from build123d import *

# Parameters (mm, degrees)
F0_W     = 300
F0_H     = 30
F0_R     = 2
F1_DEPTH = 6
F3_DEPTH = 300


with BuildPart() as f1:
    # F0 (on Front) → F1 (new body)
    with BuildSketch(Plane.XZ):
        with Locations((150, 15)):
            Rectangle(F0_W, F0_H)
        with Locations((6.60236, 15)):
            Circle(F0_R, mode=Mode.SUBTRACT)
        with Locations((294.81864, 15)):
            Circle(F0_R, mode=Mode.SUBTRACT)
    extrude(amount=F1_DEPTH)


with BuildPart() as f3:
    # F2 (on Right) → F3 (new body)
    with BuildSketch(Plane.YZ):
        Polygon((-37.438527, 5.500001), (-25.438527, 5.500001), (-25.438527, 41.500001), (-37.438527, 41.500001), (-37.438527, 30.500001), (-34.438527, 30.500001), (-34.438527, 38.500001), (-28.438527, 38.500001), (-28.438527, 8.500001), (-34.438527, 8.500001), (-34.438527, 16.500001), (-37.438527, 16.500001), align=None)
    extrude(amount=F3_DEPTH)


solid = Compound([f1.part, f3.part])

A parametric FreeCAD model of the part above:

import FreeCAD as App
import Part
import Sketcher
from FreeCAD import Vector
Q = App.Units.Quantity

doc = App.newDocument("Part")
body = doc.addObject("PartDesign::Body", "Body")

# Sketch on XZ plane
sketch1 = doc.addObject("Sketcher::SketchObject", "Sketch")
body.addObject(sketch1)
sketch1.AttachmentSupport = (doc.XZ_Plane, [""])
sketch1.MapMode = "FlatFace"
sketch1.addGeometry([
    Part.LineSegment(Vector(0, 30, 0), Vector(0, 0, 0)),  # 0
    Part.LineSegment(Vector(0, 0, 0), Vector(300, 0, 0)),  # 1
    Part.LineSegment(Vector(300, 0, 0), Vector(300, 30, 0)),  # 2
    Part.LineSegment(Vector(300, 30, 0), Vector(0, 30, 0)),  # 3
    Part.Circle(Vector(6.6, 15, 0), Vector(0, 0, 1), 2),  # 4
    Part.Circle(Vector(294.8, 15, 0), Vector(0, 0, 1), 2),  # 5
], False)
sketch1.addConstraint([
    Sketcher.Constraint("Coincident", 0, 2, 1, 1),
    Sketcher.Constraint("Coincident", 1, 2, 2, 1),
    Sketcher.Constraint("Coincident", 2, 2, 3, 1),
    Sketcher.Constraint("Coincident", 3, 2, 0, 1),
    Sketcher.Constraint("Vertical", 0),
    Sketcher.Constraint("Horizontal", 1),
    Sketcher.Constraint("Vertical", 2),
    Sketcher.Constraint("Horizontal", 3),
    Sketcher.Constraint("Coincident", 0, 2, -1, 1),
    Sketcher.Constraint("Equal", 4, 5),
    Sketcher.Constraint("Horizontal", 4, 3, 5, 3),
    Sketcher.Constraint("Diameter", 4, Q("4 mm")),
    Sketcher.Constraint("DistanceX", 1, 1, 1, 2, Q("300 mm")),
    Sketcher.Constraint("DistanceY", 0, 2, 0, 1, Q("30 mm")),
    Sketcher.Constraint("DistanceY", -1, 1, 4, 3, Q("15 mm")),
    Sketcher.Constraint("DistanceX", -1, 1, 4, 3, Q("6.60236 mm")),
    Sketcher.Constraint("DistanceX", -1, 1, 5, 3, Q("294.81864 mm")),
])
pad1 = doc.addObject("PartDesign::Pad", "Pad")
body.addObject(pad1)
pad1.Profile = sketch1
pad1.Length = 6
body2 = doc.addObject("PartDesign::Body", "Body001")

# Sketch on YZ plane
sketch2 = doc.addObject("Sketcher::SketchObject", "Sketch001")
body2.addObject(sketch2)
sketch2.AttachmentSupport = (doc.getObject("YZ_Plane001"), [""])
sketch2.MapMode = "FlatFace"
sketch2.addGeometry([
    Part.LineSegment(Vector(-37.4, 5.5, 0), Vector(-25.4, 5.5, 0)),  # 0
    Part.LineSegment(Vector(-25.4, 5.5, 0), Vector(-25.4, 41.5, 0)),  # 1
    Part.LineSegment(Vector(-25.4, 41.5, 0), Vector(-37.4, 41.5, 0)),  # 2
    Part.LineSegment(Vector(-37.4, 41.5, 0), Vector(-37.4, 30.5, 0)),  # 3
    Part.LineSegment(Vector(-37.4, 30.5, 0), Vector(-34.4, 30.5, 0)),  # 4
    Part.LineSegment(Vector(-34.4, 30.5, 0), Vector(-34.4, 38.5, 0)),  # 5
    Part.LineSegment(Vector(-34.4, 38.5, 0), Vector(-28.4, 38.5, 0)),  # 6
    Part.LineSegment(Vector(-28.4, 38.5, 0), Vector(-28.4, 8.5, 0)),  # 7
    Part.LineSegment(Vector(-28.4, 8.5, 0), Vector(-34.4, 8.5, 0)),  # 8
    Part.LineSegment(Vector(-34.4, 8.5, 0), Vector(-34.4, 16.5, 0)),  # 9
    Part.LineSegment(Vector(-34.4, 16.5, 0), Vector(-37.4, 16.5, 0)),  # 10
    Part.LineSegment(Vector(-37.4, 16.5, 0), Vector(-37.4, 5.5, 0)),  # 11
], False)
sketch2.addConstraint([
    Sketcher.Constraint("Coincident", 0, 2, 1, 1),
    Sketcher.Constraint("Coincident", 1, 2, 2, 1),
    Sketcher.Constraint("Coincident", 2, 2, 3, 1),
    Sketcher.Constraint("Coincident", 3, 2, 4, 1),
    Sketcher.Constraint("Coincident", 4, 2, 5, 1),
    Sketcher.Constraint("Coincident", 5, 2, 6, 1),
    Sketcher.Constraint("Coincident", 6, 2, 7, 1),
    Sketcher.Constraint("Coincident", 7, 2, 8, 1),
    Sketcher.Constraint("Coincident", 8, 2, 9, 1),
    Sketcher.Constraint("Coincident", 9, 2, 10, 1),
    Sketcher.Constraint("Coincident", 10, 2, 11, 1),
    Sketcher.Constraint("Coincident", 11, 2, 0, 1),
    Sketcher.Constraint("Horizontal", 0),
    Sketcher.Constraint("Vertical", 1),
    Sketcher.Constraint("Horizontal", 2),
    Sketcher.Constraint("Vertical", 3),
    Sketcher.Constraint("Horizontal", 4),
    Sketcher.Constraint("Vertical", 5),
    Sketcher.Constraint("Horizontal", 6),
    Sketcher.Constraint("Vertical", 7),
    Sketcher.Constraint("Horizontal", 8),
    Sketcher.Constraint("Vertical", 9),
    Sketcher.Constraint("Horizontal", 10),
    Sketcher.Constraint("Vertical", 11),
    Sketcher.Constraint("Vertical", 5, 2, 8, 2),
    Sketcher.Constraint("Vertical", 3, 2, 10, 2),
    Sketcher.Constraint("Equal", 5, 9),
    Sketcher.Constraint("Equal", 3, 11),
    Sketcher.Constraint("DistanceX", 0, 1, 0, 2, Q("12 mm")),
    Sketcher.Constraint("DistanceX", 4, 1, 4, 2, Q("3 mm")),
    Sketcher.Constraint("DistanceX", 6, 1, 6, 2, Q("6 mm")),
    Sketcher.Constraint("DistanceY", 1, 1, 1, 2, Q("36 mm")),
    Sketcher.Constraint("DistanceY", 3, 2, 3, 1, Q("11 mm")),
    Sketcher.Constraint("DistanceY", 5, 1, 5, 2, Q("8 mm")),
    Sketcher.Constraint("DistanceY", -1, 1, 0, 2, Q("5.500001 mm")),
    Sketcher.Constraint("DistanceX", 0, 2, -1, 1, Q("25.438527 mm")),
])
pad2 = doc.addObject("PartDesign::Pad", "Pad001")
body2.addObject(pad2)
pad2.Profile = sketch2
pad2.Length = 300

doc.recompute()
